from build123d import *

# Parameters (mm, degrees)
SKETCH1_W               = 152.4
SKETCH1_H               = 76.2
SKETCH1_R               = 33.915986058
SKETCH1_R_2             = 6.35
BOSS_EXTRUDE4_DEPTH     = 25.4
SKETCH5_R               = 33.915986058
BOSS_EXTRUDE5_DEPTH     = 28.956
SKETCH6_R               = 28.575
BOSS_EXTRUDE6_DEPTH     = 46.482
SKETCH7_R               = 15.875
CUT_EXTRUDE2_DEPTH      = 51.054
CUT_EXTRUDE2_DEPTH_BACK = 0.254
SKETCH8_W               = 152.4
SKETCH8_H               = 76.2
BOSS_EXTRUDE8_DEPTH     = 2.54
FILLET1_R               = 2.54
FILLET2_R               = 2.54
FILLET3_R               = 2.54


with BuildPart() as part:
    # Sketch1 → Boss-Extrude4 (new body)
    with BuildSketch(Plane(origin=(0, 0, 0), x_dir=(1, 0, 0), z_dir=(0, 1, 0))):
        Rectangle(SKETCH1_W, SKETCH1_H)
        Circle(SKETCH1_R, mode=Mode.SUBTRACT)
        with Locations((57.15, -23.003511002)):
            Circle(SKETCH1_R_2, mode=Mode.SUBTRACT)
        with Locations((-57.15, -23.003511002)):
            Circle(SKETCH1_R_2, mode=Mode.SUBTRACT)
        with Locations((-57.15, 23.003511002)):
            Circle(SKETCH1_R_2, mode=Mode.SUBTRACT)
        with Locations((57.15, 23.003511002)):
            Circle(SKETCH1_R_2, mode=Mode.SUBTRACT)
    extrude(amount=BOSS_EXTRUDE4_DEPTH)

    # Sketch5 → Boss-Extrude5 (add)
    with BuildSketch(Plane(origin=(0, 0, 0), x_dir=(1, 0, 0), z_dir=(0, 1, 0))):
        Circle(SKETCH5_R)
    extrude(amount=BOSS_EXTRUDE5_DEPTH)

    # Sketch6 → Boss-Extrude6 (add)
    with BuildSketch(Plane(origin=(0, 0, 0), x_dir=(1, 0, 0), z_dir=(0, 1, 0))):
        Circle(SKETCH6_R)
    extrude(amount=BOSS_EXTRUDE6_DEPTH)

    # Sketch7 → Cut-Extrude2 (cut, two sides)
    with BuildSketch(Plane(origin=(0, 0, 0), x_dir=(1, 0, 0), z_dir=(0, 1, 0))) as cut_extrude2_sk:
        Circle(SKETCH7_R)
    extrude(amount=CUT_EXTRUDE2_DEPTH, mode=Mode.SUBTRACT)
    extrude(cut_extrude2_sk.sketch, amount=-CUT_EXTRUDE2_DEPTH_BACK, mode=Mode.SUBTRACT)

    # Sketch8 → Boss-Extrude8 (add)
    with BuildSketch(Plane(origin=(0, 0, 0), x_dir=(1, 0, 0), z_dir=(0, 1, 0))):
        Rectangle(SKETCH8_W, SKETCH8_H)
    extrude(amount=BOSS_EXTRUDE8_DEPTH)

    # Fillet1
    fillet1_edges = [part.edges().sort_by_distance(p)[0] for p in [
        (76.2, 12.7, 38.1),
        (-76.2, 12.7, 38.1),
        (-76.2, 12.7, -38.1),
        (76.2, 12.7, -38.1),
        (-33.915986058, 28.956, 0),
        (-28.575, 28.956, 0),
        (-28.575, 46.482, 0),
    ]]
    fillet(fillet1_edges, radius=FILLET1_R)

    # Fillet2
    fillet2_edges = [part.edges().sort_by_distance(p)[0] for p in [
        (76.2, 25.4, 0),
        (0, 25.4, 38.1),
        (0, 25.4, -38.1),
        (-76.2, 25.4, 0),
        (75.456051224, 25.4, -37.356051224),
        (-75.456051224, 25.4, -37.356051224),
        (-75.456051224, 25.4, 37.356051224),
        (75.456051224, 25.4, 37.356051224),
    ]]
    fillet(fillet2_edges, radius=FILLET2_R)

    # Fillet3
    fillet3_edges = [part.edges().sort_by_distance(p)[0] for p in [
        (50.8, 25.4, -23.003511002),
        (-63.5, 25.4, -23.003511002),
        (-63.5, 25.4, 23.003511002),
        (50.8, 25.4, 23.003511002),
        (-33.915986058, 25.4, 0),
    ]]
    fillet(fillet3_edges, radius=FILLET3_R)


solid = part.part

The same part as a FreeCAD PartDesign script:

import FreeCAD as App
import Part
import Sketcher
from FreeCAD import Vector
Q = App.Units.Quantity


def edges_at(feature, points):
    """Names of the edges that pass closest to the given points."""
    edges = feature.Shape.Edges
    near = lambda p: min(range(len(edges)), key=lambda i: edges[i].distToShape(Part.Vertex(*p))[0])
    return sorted({f"Edge{near(p) + 1}" for p in points})


def add_polygon(sketch, points):
    """Adds a closed chain of lines whose ends are joined by coincident constraints."""
    first, n = sketch.GeometryCount, len(points)
    for a, b in zip(points, points[1:] + points[:1]):
        sketch.addGeometry(Part.LineSegment(App.Vector(*a, 0), App.Vector(*b, 0)), False)
    for i in range(n):
        sketch.addConstraint(Sketcher.Constraint("Coincident", first + i, 2, first + (i + 1) % n, 1))

doc = App.newDocument("Part")
body = doc.addObject("PartDesign::Body", "Body")

# Sketch on XZ plane
sketch1 = doc.addObject("Sketcher::SketchObject", "Sketch")
body.addObject(sketch1)
sketch1.AttachmentSupport = (doc.XZ_Plane, [""])
sketch1.MapMode = "FlatFace"
add_polygon(sketch1, [(-76, -38), (-76, 38), (76, 38), (76, -38)])  # lines 0-3
sketch1.addGeometry(Part.Circle(Vector(-57, 23, 0), Vector(0, 0, 1), 6), False)  # 4
sketch1.addGeometry(Part.Circle(Vector(57, 23, 0), Vector(0, 0, 1), 6), False)  # 5
sketch1.addGeometry(Part.Circle(Vector(-57, -23, 0), Vector(0, 0, 1), 6), False)  # 6
sketch1.addGeometry(Part.Circle(Vector(0, 0, 0), Vector(0, 0, 1), 34), False)  # 7
sketch1.addGeometry(Part.Circle(Vector(57, -23, 0), Vector(0, 0, 1), 6), False)  # 8
sketch1.addConstraint(Sketcher.Constraint("Vertical", 0))
sketch1.addConstraint(Sketcher.Constraint("Horizontal", 1))
sketch1.addConstraint(Sketcher.Constraint("Vertical", 2))
sketch1.addConstraint(Sketcher.Constraint("Horizontal", 3))
sketch1.addConstraint(Sketcher.Constraint("Coincident", 7, 3, -1, 1))
sketch1.addConstraint(Sketcher.Constraint("Equal", 4, 5))
sketch1.addConstraint(Sketcher.Constraint("Equal", 5, 6))
sketch1.addConstraint(Sketcher.Constraint("Equal", 6, 8))
sketch1.addConstraint(Sketcher.Constraint("Symmetric", 5, 3, 6, 3, -1, 1))
sketch1.addConstraint(Sketcher.Constraint("Symmetric", 4, 3, 8, 3, -1, 1))
sketch1.addConstraint(Sketcher.Constraint("Symmetric", 0, 2, 2, 2, -1, 1))
sketch1.addConstraint(Sketcher.Constraint("Symmetric", 4, 3, 5, 3, -2))
sketch1.addConstraint(Sketcher.Constraint("Diameter", 4, Q("0.5 in")))
sketch1.addConstraint(Sketcher.Constraint("DistanceX", 1, 1, 1, 2, Q("6 in")))
sketch1.addConstraint(Sketcher.Constraint("DistanceY", 0, 1, 0, 2, Q("3 in")))
sketch1.addConstraint(Sketcher.Constraint("DistanceX", 4, 3, 5, 3, Q("4.5 in")))
sketch1.addConstraint(Sketcher.Constraint("Diameter", 7, Q("67.831972 mm")))
sketch1.addConstraint(Sketcher.Constraint("DistanceY", 6, 3, 4, 3, Q("1.8113001 in")))
pad1 = doc.addObject("PartDesign::Pad", "Pad")
body.addObject(pad1)
pad1.Profile = sketch1
pad1.Length = Q("1 in")
pad1.Reversed = True

# Sketch on XZ plane
sketch2 = doc.addObject("Sketcher::SketchObject", "Sketch001")
body.addObject(sketch2)
sketch2.AttachmentSupport = (doc.XZ_Plane, [""])
sketch2.MapMode = "FlatFace"
sketch2.addGeometry(Part.Circle(Vector(0, 0, 0), Vector(0, 0, 1), 34), False)
sketch2.addConstraint(Sketcher.Constraint("Coincident", 0, 3, -1, 1))
sketch2.addConstraint(Sketcher.Constraint("Diameter", 0, Q("67.831972 mm")))
pad2 = doc.addObject("PartDesign::Pad", "Pad001")
body.addObject(pad2)
pad2.Profile = sketch2
pad2.Length = Q("1.14 in")
pad2.Reversed = True

# Sketch on XZ plane
sketch3 = doc.addObject("Sketcher::SketchObject", "Sketch002")
body.addObject(sketch3)
sketch3.AttachmentSupport = (doc.XZ_Plane, [""])
sketch3.MapMode = "FlatFace"
sketch3.addGeometry(Part.Circle(Vector(0, 0, 0), Vector(0, 0, 1), 29), False)
sketch3.addConstraint(Sketcher.Constraint("Coincident", 0, 3, -1, 1))
sketch3.addConstraint(Sketcher.Constraint("Diameter", 0, Q("2.25 in")))
pad3 = doc.addObject("PartDesign::Pad", "Pad002")
body.addObject(pad3)
pad3.Profile = sketch3
pad3.Length = Q("1.83 in")
pad3.Reversed = True

# Sketch on XZ plane
sketch4 = doc.addObject("Sketcher::SketchObject", "Sketch003")
body.addObject(sketch4)
sketch4.AttachmentSupport = (doc.XZ_Plane, [""])
sketch4.MapMode = "FlatFace"
sketch4.addGeometry(Part.Circle(Vector(0, 0, 0), Vector(0, 0, 1), 16), False)
sketch4.addConstraint(Sketcher.Constraint("Coincident", 0, 3, -1, 1))
sketch4.addConstraint(Sketcher.Constraint("Diameter", 0, Q("1.25 in")))
pocket1 = doc.addObject("PartDesign::Pocket", "Pocket")
body.addObject(pocket1)
pocket1.Profile = sketch4
pocket1.Type = "ThroughAll"
pocket1.Midplane = True

# Sketch on XZ plane
sketch5 = doc.addObject("Sketcher::SketchObject", "Sketch004")
body.addObject(sketch5)
sketch5.AttachmentSupport = (doc.XZ_Plane, [""])
sketch5.MapMode = "FlatFace"
add_polygon(sketch5, [(-76, -38), (-76, 38), (76, 38), (76, -38)])  # lines 0-3
sketch5.addConstraint(Sketcher.Constraint("Vertical", 0))
sketch5.addConstraint(Sketcher.Constraint("Horizontal", 1))
sketch5.addConstraint(Sketcher.Constraint("Vertical", 2))
sketch5.addConstraint(Sketcher.Constraint("Horizontal", 3))
sketch5.addConstraint(Sketcher.Constraint("Symmetric", 0, 2, 2, 2, -1, 1))
sketch5.addConstraint(Sketcher.Constraint("DistanceX", 1, 1, 1, 2, Q("6 in")))
sketch5.addConstraint(Sketcher.Constraint("DistanceY", 0, 1, 0, 2, Q("3 in")))
pad4 = doc.addObject("PartDesign::Pad", "Pad003")
body.addObject(pad4)
pad4.Profile = sketch5
pad4.Length = Q("0.1 in")
pad4.Reversed = True
doc.recompute()

fillet = doc.addObject("PartDesign::Fillet", "Fillet")
body.addObject(fillet)
fillet.Base = (pad4, edges_at(pad4, [
    (76.2, 12.7, 38.1),
    (-76.2, 12.7, 38.1),
    (-76.2, 12.7, -38.1),
    (76.2, 12.7, -38.1),
    (-33.916, 28.956, 0),
    (-28.575, 28.956, 0),
    (-28.575, 46.482, 0),
]))
fillet.Radius = Q("0.1 in")
doc.recompute()

fillet2 = doc.addObject("PartDesign::Fillet", "Fillet001")
body.addObject(fillet2)
fillet2.Base = (fillet, edges_at(fillet, [
    (76.2, 25.4, 0),
    (0, 25.4, 38.1),
    (0, 25.4, -38.1),
    (-76.2, 25.4, 0),
    (75.456, 25.4, -37.356),
    (-75.456, 25.4, -37.356),
    (-75.456, 25.4, 37.356),
    (75.456, 25.4, 37.356),
]))
fillet2.Radius = Q("0.1 in")
doc.recompute()

fillet3 = doc.addObject("PartDesign::Fillet", "Fillet002")
body.addObject(fillet3)
fillet3.Base = (fillet2, edges_at(fillet2, [
    (50.8, 25.4, -23.004),
    (-63.5, 25.4, -23.004),
    (-63.5, 25.4, 23.004),
    (50.8, 25.4, 23.004),
    (-33.916, 25.4, 0),
]))
fillet3.Radius = Q("0.1 in")

doc.recompute()
